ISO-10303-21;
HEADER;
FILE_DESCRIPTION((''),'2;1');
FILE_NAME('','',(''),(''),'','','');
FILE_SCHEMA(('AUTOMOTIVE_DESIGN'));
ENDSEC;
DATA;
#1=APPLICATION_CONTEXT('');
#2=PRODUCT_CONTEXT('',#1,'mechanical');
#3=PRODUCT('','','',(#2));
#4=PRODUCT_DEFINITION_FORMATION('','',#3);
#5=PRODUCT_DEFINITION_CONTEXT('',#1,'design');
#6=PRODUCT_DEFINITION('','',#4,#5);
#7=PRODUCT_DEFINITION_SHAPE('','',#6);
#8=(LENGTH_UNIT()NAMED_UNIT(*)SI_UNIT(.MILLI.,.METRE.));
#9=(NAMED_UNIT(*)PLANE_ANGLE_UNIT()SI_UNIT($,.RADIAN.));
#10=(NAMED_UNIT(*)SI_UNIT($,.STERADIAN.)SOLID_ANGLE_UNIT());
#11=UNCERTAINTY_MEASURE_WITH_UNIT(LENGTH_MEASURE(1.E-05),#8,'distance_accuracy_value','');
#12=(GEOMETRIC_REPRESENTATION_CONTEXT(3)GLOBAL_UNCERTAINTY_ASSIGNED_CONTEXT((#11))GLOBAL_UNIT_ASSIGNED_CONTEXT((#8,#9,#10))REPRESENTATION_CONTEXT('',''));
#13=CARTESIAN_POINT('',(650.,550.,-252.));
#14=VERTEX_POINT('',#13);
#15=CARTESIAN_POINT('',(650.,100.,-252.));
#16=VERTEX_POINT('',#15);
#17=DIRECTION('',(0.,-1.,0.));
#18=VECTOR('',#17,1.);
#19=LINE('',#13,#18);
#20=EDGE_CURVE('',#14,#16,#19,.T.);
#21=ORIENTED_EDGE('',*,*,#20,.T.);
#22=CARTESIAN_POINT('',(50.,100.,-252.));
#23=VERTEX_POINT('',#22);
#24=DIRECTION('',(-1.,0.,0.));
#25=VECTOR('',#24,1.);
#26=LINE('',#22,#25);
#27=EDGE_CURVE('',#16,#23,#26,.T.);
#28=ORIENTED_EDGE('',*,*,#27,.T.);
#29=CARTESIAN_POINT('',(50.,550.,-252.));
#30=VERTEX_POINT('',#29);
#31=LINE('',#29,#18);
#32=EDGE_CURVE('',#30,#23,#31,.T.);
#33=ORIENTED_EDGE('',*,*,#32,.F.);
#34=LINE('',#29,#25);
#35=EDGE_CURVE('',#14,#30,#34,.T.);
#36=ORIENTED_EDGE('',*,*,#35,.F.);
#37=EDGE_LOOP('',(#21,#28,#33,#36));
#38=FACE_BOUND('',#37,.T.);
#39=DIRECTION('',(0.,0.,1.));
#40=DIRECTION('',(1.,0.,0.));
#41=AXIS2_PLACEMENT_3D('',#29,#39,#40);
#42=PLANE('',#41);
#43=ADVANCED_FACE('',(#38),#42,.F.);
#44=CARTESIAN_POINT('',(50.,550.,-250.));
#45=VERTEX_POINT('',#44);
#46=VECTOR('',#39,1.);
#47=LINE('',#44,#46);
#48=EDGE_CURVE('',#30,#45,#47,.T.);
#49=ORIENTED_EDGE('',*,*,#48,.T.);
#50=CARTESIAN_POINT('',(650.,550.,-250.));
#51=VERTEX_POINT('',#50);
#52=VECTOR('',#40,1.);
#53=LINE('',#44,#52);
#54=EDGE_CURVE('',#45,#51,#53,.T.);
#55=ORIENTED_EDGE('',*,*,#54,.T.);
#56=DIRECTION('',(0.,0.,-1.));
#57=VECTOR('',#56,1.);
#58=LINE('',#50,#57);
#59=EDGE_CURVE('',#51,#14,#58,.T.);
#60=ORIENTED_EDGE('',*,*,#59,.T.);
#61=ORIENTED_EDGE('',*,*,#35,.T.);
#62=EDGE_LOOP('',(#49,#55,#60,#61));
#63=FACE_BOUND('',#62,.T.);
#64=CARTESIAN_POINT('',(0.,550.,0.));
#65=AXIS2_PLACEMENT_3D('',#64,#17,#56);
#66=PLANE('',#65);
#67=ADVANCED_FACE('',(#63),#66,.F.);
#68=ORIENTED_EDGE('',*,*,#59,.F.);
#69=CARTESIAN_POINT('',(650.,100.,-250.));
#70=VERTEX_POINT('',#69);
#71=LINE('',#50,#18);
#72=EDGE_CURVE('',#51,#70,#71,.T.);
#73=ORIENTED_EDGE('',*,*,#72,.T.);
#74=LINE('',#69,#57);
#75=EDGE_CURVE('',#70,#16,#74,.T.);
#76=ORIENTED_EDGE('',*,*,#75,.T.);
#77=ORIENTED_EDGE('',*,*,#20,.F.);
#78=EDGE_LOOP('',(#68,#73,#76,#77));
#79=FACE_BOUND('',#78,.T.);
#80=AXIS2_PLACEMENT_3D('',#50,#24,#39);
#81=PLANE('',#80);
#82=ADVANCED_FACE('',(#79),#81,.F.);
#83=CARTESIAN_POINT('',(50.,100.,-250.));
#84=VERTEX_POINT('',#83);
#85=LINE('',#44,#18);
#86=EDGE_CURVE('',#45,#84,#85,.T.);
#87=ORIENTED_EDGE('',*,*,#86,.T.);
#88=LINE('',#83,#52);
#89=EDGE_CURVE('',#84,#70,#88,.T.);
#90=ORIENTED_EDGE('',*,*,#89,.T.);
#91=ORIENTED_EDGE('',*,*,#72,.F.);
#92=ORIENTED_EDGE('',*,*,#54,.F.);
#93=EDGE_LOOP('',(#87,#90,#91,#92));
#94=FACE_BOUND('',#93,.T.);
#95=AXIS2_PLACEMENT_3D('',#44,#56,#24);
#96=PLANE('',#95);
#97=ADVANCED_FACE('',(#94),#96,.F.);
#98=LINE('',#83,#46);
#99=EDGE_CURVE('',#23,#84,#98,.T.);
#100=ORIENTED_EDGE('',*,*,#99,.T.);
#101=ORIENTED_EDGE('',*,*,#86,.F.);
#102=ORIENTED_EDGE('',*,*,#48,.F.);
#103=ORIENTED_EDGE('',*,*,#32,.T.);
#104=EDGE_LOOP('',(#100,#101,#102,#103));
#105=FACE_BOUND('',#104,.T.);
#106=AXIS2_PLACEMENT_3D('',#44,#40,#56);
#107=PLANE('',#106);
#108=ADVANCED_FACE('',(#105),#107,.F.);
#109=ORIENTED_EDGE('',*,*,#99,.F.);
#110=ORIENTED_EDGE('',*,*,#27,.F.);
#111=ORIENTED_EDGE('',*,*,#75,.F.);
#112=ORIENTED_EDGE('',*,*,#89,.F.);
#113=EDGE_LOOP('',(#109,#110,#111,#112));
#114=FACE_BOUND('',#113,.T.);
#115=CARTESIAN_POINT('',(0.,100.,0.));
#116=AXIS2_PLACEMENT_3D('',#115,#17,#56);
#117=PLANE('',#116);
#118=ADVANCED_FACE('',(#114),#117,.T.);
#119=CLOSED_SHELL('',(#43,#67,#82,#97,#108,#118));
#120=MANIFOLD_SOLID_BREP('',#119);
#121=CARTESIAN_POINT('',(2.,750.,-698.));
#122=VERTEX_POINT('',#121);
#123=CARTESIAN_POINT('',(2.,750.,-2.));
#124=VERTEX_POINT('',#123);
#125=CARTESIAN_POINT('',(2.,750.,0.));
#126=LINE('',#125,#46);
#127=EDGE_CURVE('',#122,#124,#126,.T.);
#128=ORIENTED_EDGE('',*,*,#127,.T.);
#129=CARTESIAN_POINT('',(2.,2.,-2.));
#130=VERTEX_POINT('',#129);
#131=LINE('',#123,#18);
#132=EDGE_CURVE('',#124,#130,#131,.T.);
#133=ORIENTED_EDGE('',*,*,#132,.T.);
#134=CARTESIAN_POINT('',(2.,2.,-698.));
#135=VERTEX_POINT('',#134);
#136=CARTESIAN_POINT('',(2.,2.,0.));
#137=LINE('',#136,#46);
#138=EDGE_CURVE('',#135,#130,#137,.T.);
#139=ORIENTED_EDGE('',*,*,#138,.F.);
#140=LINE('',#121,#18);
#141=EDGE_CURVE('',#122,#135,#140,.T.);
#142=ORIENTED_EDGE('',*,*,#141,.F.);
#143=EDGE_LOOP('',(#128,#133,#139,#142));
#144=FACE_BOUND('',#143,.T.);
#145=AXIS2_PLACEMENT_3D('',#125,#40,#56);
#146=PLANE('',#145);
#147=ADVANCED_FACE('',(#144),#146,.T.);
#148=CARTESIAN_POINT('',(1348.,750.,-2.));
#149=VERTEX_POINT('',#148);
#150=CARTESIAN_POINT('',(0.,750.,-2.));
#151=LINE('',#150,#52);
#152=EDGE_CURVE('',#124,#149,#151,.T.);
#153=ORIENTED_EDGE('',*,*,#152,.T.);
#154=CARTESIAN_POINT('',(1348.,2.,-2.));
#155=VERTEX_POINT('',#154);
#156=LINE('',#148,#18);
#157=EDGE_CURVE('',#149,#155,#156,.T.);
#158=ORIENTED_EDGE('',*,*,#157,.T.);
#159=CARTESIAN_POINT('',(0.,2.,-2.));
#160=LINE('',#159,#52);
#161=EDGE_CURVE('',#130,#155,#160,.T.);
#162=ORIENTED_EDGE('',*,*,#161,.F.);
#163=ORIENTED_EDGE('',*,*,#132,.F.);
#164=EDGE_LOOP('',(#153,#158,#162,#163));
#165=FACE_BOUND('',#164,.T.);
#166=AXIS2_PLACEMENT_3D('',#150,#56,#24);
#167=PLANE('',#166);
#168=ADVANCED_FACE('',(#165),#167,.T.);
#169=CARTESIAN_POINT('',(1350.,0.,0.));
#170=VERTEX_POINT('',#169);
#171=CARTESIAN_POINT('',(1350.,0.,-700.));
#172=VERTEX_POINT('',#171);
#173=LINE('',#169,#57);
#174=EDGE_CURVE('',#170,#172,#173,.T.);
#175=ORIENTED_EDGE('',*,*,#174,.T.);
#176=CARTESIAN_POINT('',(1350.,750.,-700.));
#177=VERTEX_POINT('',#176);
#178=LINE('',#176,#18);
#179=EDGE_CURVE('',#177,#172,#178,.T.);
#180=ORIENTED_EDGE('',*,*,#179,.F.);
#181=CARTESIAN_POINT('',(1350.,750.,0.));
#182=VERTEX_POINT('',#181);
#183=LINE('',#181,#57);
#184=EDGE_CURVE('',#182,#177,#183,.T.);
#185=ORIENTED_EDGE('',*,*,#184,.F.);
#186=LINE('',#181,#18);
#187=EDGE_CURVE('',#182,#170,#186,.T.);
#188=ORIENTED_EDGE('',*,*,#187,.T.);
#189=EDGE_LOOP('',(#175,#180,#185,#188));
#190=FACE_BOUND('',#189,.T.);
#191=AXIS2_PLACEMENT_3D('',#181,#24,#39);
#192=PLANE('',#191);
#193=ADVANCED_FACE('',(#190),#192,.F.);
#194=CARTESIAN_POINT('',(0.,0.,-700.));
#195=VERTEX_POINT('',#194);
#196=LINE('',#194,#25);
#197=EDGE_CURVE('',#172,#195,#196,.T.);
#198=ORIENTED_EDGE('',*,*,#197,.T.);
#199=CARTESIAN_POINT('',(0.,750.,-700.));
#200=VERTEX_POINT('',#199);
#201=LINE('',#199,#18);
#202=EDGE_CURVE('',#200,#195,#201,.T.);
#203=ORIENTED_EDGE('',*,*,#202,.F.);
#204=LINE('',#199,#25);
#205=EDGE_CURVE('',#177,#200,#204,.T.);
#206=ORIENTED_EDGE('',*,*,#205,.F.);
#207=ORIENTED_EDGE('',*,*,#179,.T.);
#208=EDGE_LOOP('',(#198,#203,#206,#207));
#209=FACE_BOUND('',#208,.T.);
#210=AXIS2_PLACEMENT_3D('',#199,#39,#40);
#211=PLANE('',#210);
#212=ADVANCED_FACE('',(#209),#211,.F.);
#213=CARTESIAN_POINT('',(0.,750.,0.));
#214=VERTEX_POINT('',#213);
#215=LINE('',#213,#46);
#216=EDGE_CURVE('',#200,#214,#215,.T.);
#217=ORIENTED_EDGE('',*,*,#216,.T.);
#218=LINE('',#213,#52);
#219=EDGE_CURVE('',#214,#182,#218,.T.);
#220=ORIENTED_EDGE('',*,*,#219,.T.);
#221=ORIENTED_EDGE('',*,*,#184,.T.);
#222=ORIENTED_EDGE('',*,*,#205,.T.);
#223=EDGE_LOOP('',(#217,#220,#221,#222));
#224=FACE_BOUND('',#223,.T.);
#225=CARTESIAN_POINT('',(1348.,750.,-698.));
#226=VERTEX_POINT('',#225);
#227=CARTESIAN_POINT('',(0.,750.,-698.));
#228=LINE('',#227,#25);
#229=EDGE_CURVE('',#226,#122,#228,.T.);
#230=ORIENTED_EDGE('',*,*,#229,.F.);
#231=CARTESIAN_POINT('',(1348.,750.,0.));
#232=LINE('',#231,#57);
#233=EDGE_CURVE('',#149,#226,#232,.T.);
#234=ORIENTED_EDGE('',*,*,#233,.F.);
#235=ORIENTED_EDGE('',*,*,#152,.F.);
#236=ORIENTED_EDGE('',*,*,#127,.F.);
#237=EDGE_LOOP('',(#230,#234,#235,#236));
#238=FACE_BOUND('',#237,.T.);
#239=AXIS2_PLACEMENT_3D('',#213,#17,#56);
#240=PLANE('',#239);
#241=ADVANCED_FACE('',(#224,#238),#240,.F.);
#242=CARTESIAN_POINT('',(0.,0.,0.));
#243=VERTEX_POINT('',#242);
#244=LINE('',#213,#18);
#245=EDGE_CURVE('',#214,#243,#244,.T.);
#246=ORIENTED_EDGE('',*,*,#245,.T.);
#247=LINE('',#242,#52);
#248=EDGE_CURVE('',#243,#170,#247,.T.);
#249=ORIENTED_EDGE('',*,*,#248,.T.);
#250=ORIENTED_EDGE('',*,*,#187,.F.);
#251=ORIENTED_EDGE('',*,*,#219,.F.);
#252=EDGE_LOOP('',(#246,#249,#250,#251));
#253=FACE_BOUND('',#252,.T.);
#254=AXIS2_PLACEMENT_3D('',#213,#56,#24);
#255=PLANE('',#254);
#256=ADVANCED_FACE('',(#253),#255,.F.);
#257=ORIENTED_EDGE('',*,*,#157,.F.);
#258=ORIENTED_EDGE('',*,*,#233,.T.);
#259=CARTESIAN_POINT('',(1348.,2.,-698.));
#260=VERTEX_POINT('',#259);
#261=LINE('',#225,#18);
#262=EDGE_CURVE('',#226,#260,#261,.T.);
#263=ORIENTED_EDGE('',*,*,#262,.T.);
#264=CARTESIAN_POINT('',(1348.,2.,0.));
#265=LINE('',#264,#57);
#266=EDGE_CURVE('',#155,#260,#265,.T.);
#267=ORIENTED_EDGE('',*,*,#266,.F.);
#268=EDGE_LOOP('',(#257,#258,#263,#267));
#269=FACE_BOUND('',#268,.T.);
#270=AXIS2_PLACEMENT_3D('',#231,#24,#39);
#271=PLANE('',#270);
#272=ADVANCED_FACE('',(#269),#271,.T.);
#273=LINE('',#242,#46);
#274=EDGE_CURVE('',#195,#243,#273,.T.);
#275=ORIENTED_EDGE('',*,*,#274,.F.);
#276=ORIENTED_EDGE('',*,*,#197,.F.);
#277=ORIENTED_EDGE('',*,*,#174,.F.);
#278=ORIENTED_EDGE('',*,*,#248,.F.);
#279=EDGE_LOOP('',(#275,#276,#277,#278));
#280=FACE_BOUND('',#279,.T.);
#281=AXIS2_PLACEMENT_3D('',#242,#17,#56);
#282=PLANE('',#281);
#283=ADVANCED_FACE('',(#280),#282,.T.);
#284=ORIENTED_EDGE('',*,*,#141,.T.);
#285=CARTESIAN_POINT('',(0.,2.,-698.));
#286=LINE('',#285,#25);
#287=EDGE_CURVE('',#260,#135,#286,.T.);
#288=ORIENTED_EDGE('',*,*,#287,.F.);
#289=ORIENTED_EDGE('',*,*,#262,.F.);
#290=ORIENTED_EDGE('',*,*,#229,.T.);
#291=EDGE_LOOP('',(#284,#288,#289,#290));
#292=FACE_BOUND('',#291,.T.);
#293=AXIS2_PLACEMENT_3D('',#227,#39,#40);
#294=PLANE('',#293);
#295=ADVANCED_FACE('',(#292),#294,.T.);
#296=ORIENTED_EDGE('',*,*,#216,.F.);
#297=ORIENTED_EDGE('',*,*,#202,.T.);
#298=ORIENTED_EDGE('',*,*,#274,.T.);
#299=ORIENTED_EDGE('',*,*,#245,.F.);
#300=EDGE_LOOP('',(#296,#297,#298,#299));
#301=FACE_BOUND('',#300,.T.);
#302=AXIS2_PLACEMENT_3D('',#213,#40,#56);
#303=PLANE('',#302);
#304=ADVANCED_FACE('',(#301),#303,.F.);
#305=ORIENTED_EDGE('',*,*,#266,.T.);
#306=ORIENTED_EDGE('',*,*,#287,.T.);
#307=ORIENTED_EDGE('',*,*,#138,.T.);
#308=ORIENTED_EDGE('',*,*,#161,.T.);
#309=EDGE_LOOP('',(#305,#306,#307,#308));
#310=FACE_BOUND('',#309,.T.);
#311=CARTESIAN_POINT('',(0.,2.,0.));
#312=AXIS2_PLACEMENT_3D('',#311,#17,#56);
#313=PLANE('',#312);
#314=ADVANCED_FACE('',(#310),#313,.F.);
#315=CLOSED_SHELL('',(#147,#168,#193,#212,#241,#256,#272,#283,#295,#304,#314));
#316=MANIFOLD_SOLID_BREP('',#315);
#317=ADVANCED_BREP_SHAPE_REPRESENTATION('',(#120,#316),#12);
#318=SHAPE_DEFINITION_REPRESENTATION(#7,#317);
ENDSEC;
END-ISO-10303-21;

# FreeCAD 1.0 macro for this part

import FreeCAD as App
import Part
import Sketcher
from FreeCAD import Vector
Q = App.Units.Quantity


def faces_at(feature, points):
    """Names of the faces that lie closest to the given points."""
    faces = feature.Shape.Faces
    near = lambda p: min(range(len(faces)), key=lambda i: faces[i].distToShape(Part.Vertex(*p))[0])
    return sorted({f"Face{near(p) + 1}" for p in points})


def add_polygon(sketch, points):
    """Adds a closed chain of lines whose ends are joined by coincident constraints."""
    first, n = sketch.GeometryCount, len(points)
    for a, b in zip(points, points[1:] + points[:1]):
        sketch.addGeometry(Part.LineSegment(App.Vector(*a, 0), App.Vector(*b, 0)), False)
    for i in range(n):
        sketch.addConstraint(Sketcher.Constraint("Coincident", first + i, 2, first + (i + 1) % n, 1))

doc = App.newDocument("Part")
body = doc.addObject("PartDesign::Body", "Body")

sketch1 = doc.addObject("Sketcher::SketchObject", "Sketch")
body.addObject(sketch1)
sketch1.AttachmentSupport = (doc.XZ_Plane, [""])
sketch1.MapMode = "FlatFace"
add_polygon(sketch1, [(0, -700), (0, 0), (1350, 0), (1350, -700)])
sketch1.addConstraint([
    Sketcher.Constraint("Vertical", 0),
    Sketcher.Constraint("Horizontal", 1),
    Sketcher.Constraint("Vertical", 2),
    Sketcher.Constraint("Horizontal", 3),
    Sketcher.Constraint("Coincident", 0, 2, -1, 1),
    Sketcher.Constraint("DistanceX", 1, 1, 1, 2, Q("1350 mm")),
    Sketcher.Constraint("DistanceY", 0, 1, 0, 2, Q("700 mm")),
])
pad1 = doc.addObject("PartDesign::Pad", "Pad")
body.addObject(pad1)
pad1.Profile = sketch1
pad1.Length = 750
pad1.Reversed = True
doc.recompute()

thickness = doc.addObject("PartDesign::Thickness", "Thickness")
body.addObject(thickness)
thickness.Base = (pad1, faces_at(pad1, [(675, 750, -350)]))
thickness.Value = 2
thickness.Reversed = True
thickness.Join = "Intersection"
body2 = doc.addObject("PartDesign::Body", "Body001")

sketch2 = doc.addObject("Sketcher::SketchObject", "Sketch001")
body2.addObject(sketch2)
sketch2.AttachmentSupport = (doc.getObject("XZ_Plane001"), [""])
sketch2.MapMode = "FlatFace"
sketch2.AttachmentOffset = App.Placement(Vector(0, 0, -100), App.Rotation())
add_polygon(sketch2, [(50, -252), (50, -250), (650, -250), (650, -252)])
sketch2.addConstraint([
    Sketcher.Constraint("Vertical", 0),
    Sketcher.Constraint("Horizontal", 1),
    Sketcher.Constraint("Vertical", 2),
    Sketcher.Constraint("Horizontal", 3),
    Sketcher.Constraint("DistanceX", 1, 1, 1, 2, Q("600 mm")),
    Sketcher.Constraint("DistanceY", 0, 1, 0, 2, Q("2 mm")),
    Sketcher.Constraint("DistanceX", -1, 1, 0, 2, Q("50 mm")),
    Sketcher.Constraint("DistanceY", 0, 2, -1, 1, Q("250 mm")),
])
pad2 = doc.addObject("PartDesign::Pad", "Pad001")
body2.addObject(pad2)
pad2.Profile = sketch2
pad2.Length = 450
pad2.Reversed = True

doc.recompute()
